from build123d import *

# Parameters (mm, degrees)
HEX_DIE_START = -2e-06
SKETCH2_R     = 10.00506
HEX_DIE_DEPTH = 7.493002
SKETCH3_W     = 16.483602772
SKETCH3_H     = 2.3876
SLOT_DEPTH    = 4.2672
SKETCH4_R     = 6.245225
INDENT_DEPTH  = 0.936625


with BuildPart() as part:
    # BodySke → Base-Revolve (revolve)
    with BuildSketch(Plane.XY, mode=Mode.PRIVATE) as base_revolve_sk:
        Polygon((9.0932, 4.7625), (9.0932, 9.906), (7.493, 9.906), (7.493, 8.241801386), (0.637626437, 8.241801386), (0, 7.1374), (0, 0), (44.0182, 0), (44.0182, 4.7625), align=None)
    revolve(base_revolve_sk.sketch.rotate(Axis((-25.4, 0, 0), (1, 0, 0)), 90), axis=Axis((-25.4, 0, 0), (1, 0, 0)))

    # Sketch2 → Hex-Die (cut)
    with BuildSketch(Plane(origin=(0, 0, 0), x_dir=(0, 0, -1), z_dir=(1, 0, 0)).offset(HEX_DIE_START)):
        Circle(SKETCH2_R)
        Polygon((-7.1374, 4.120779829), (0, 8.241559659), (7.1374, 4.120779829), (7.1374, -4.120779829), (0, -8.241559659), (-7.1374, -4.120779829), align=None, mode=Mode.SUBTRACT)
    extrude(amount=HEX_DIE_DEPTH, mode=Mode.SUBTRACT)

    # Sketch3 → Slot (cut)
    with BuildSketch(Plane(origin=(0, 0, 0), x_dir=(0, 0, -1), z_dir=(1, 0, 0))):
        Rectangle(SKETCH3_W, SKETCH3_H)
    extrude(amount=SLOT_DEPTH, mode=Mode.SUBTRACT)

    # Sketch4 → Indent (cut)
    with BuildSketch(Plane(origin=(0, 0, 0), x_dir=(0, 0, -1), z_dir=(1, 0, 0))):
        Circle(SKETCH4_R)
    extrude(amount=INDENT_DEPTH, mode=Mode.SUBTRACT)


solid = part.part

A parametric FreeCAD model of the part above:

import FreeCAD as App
import Part
import Sketcher

V = App.Vector
Q = App.Units.Quantity


def add_polygon(sketch, points):
    """Adds a closed chain of lines whose ends are joined by coincident constraints."""
    first, n = sketch.GeometryCount, len(points)
    for a, b in zip(points, points[1:] + points[:1]):
        sketch.addGeometry(Part.LineSegment(App.Vector(*a, 0), App.Vector(*b, 0)), False)
    for i in range(n):
        sketch.addConstraint(Sketcher.Constraint("Coincident", first + i, 2, first + (i + 1) % n, 1))

doc = App.newDocument("Part")
params = doc.addObject("Spreadsheet::Sheet", "Params")
for row, (alias, value) in enumerate([
    ("sketch1_width", "0.063 in"),
    ("sketch1_width2", "1.733 in"),
    ("sketch1_width3", "1.375 in"),
    ("sketch1_height", "0.281 in"),
    ("sketch1_height2", "0.1875 in"),
    ("revolution_angle", "360 deg"),
    ("pocket1_length", "0.2950001 in"),
    ("sketch3_width", "0.094 in"),
    ("pocket2_length", "0.168 in"),
    ("pocket3_length", "0.936625 mm"),
], start=1):
    params.set(f"A{row}", alias)
    params.set(f"B{row}", "=" + value)
    params.setAlias(f"B{row}", alias)

body = doc.addObject("PartDesign::Body", "Body")

sketch1 = doc.addObject("Sketcher::SketchObject", "Sketch")
body.addObject(sketch1)
sketch1.AttachmentSupport = (doc.XY_Plane, [""])
sketch1.MapMode = "FlatFace"
add_polygon(sketch1, [(9.1, 4.8), (9.1, 9.9), (7.5, 9.9), (7.5, 8.2), (0.6, 8.2), (0, 7.1), (0, 0), (44, 0), (44, 4.8)])
sketch1.addConstraint([
    Sketcher.Constraint("Vertical", 0),
    Sketcher.Constraint("Horizontal", 1),
    Sketcher.Constraint("Vertical", 2),
    Sketcher.Constraint("Horizontal", 3),
    Sketcher.Constraint("Vertical", 5),
    Sketcher.Constraint("Horizontal", 6),
    Sketcher.Constraint("Vertical", 7),
    Sketcher.Constraint("Horizontal", 8),
    Sketcher.Constraint("Coincident", 5, 2, -1, 1),
    Sketcher.Constraint("Angle", 4, Q("-120 deg")),
    Sketcher.Constraint("DistanceX", 1, 2, 1, 1, Q("0.063 in")),
    Sketcher.Constraint("DistanceX", 6, 1, 6, 2, Q("1.733 in")),
    Sketcher.Constraint("DistanceX", 8, 2, 8, 1, Q("1.375 in")),
    Sketcher.Constraint("DistanceY", 5, 2, 5, 1, Q("0.281 in")),
    Sketcher.Constraint("DistanceY", 7, 1, 7, 2, Q("0.1875 in")),
    Sketcher.Constraint("DistanceY", -1, 1, 0, 2, Q("0.39 in")),
    Sketcher.Constraint("DistanceY", 2, 2, 2, 1, Q("1.664199 mm")),
])
sketch1.setExpression("Constraints[19]", "Params.sketch1_width")
sketch1.setExpression("Constraints[20]", "Params.sketch1_width2")
sketch1.setExpression("Constraints[21]", "Params.sketch1_width3")
sketch1.setExpression("Constraints[22]", "Params.sketch1_height")
sketch1.setExpression("Constraints[23]", "Params.sketch1_height2")
revolution = doc.addObject("PartDesign::Revolution", "Revolution")
body.addObject(revolution)
revolution.Profile = sketch1
revolution.ReferenceAxis = (sketch1, ["H_Axis"])
revolution.setExpression("Angle", "Params.revolution_angle")

sketch2 = doc.addObject("Sketcher::SketchObject", "Sketch001")
body.addObject(sketch2)
sketch2.AttachmentSupport = (doc.YZ_Plane, [""])
sketch2.MapMode = "FlatFace"
sketch2.AttachmentOffset = App.Placement(V(0, 0, -0.0000001 * 25.4), App.Rotation())
sketch2.addGeometry(Part.Circle(V(0, 0, 0), V(0, 0, 1), 10), False)
add_polygon(sketch2, [(-4, 7), (4, 7), (8, 0), (4, -7), (-4, -7), (-8, 0)])
sketch2.addConstraint([
    Sketcher.Constraint("Horizontal", 1),
    Sketcher.Constraint("Horizontal", 4),
    Sketcher.Constraint("Coincident", 0, 3, -1, 1),
    Sketcher.Constraint("Symmetric", 1, 2, 4, 2, -1, 1),
    Sketcher.Constraint("Symmetric", 2, 2, 5, 2, -1, 1),
    Sketcher.Constraint("PointOnObject", 2, 2, -1),
    Sketcher.Constraint("Parallel", 3, 6),
    Sketcher.Constraint("Vertical", 1, 2, 3, 2),
    Sketcher.Constraint("Angle", 2, Q("-60 deg")),
    Sketcher.Constraint("Diameter", 0, Q("0.7878 in")),
    Sketcher.Constraint("DistanceY", -1, 1, 1, 2, Q("0.281 in")),
    Sketcher.Constraint("DistanceX", 1, 1, 1, 2, Q("8.24156 mm")),
])
pocket1 = doc.addObject("PartDesign::Pocket", "Pocket")
body.addObject(pocket1)
pocket1.Profile = sketch2
pocket1.setExpression("Length", "Params.pocket1_length")
pocket1.Reversed = True

sketch3 = doc.addObject("Sketcher::SketchObject", "Sketch002")
body.addObject(sketch3)
sketch3.AttachmentSupport = (doc.YZ_Plane, [""])
sketch3.MapMode = "FlatFace"
add_polygon(sketch3, [(1.2, 8.2), (-1.2, 8.2), (-1.2, -8.2), (1.2, -8.2)])
sketch3.addConstraint([
    Sketcher.Constraint("Horizontal", 0),
    Sketcher.Constraint("Vertical", 1),
    Sketcher.Constraint("Horizontal", 2),
    Sketcher.Constraint("Vertical", 3),
    Sketcher.Constraint("Symmetric", 0, 2, 2, 2, -1, 1),
    Sketcher.Constraint("DistanceX", 0, 2, 0, 1, Q("0.094 in")),
    Sketcher.Constraint("DistanceY", -1, 1, 0, 2, Q("8.241801 mm")),
])
sketch3.setExpression("Constraints[9]", "Params.sketch3_width")
pocket2 = doc.addObject("PartDesign::Pocket", "Pocket001")
body.addObject(pocket2)
pocket2.Profile = sketch3
pocket2.setExpression("Length", "Params.pocket2_length")
pocket2.Reversed = True

sketch4 = doc.addObject("Sketcher::SketchObject", "Sketch003")
body.addObject(sketch4)
sketch4.AttachmentSupport = (doc.YZ_Plane, [""])
sketch4.MapMode = "FlatFace"
sketch4.addGeometry(Part.Circle(V(0, 0, 0), V(0, 0, 1), 6), False)
sketch4.addConstraint([
    Sketcher.Constraint("Coincident", 0, 3, -1, 1),
    Sketcher.Constraint("Diameter", 0, Q("12.49045 mm")),
])
pocket3 = doc.addObject("PartDesign::Pocket", "Pocket002")
body.addObject(pocket3)
pocket3.Profile = sketch4
pocket3.setExpression("Length", "Params.pocket3_length")
pocket3.Reversed = True

doc.recompute()
